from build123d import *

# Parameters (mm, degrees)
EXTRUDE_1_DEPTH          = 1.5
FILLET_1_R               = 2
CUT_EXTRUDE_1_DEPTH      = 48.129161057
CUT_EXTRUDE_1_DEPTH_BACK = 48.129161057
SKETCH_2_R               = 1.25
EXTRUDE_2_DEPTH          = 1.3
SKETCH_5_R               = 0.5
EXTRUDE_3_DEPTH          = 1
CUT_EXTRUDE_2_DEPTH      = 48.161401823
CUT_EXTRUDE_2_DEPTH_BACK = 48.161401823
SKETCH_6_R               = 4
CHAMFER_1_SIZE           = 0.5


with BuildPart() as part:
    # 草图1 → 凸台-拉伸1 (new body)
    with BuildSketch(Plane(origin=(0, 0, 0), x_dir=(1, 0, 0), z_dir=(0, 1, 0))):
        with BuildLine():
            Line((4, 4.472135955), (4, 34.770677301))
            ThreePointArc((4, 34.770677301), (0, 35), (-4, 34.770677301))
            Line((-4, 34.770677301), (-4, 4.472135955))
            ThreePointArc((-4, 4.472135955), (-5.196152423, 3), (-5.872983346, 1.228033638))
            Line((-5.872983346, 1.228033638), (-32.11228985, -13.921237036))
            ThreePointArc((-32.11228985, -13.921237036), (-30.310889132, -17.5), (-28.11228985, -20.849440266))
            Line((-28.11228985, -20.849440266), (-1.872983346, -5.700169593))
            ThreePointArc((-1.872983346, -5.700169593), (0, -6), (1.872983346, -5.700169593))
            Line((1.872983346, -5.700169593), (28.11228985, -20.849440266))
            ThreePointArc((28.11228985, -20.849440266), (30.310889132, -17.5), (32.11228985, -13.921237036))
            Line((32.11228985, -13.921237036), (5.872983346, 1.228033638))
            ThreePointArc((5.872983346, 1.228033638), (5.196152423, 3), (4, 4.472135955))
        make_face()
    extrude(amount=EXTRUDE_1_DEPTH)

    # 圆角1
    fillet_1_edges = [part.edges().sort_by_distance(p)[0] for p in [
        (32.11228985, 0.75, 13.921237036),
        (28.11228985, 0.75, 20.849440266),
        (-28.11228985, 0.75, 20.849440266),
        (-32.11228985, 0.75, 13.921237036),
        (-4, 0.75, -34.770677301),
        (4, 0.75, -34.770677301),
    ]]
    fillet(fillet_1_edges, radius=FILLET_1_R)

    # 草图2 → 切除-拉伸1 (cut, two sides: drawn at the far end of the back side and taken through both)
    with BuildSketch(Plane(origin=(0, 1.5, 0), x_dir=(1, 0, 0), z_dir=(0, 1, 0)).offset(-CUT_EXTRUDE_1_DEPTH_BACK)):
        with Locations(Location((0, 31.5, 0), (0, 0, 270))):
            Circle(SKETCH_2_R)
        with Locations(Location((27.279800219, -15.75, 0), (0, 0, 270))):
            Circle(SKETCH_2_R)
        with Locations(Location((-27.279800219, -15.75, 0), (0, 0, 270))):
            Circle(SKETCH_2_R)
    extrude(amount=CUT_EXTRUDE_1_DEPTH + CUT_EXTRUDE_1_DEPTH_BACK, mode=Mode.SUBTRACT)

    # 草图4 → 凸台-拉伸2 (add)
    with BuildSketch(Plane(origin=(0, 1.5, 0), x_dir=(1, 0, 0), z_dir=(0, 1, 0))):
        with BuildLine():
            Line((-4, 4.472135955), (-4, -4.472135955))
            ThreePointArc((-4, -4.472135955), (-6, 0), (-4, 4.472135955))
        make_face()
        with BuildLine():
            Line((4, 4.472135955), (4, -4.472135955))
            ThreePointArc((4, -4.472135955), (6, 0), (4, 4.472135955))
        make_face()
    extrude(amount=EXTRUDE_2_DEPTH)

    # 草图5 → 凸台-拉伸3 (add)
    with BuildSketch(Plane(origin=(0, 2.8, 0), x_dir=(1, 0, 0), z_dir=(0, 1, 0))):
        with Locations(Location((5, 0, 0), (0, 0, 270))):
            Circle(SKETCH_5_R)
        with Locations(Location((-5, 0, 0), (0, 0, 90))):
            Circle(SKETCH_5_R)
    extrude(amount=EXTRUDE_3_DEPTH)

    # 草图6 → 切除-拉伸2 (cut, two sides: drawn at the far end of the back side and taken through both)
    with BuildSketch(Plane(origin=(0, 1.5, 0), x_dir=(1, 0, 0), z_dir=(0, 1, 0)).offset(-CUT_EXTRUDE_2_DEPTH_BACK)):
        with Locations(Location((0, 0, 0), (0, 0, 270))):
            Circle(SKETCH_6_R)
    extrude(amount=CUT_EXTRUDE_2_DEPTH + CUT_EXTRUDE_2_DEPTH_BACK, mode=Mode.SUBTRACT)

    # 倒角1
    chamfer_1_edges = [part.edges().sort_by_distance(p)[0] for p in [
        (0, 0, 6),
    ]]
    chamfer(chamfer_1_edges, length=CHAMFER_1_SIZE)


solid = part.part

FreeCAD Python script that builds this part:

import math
import FreeCAD as App
import Part
import Sketcher
from FreeCAD import Vector
Q = App.Units.Quantity


def edges_at(feature, points):
    """Names of the edges that pass closest to the given points."""
    edges = feature.Shape.Edges
    near = lambda p: min(range(len(edges)), key=lambda i: edges[i].distToShape(Part.Vertex(*p))[0])
    return sorted({f"Edge{near(p) + 1}" for p in points})

doc = App.newDocument("Part")
body = doc.addObject("PartDesign::Body", "Body")

sketch1 = body.newObject("Sketcher::SketchObject", "Sketch")
sketch1.AttachmentSupport = (doc.getObject("XZ_Plane"), [""])
sketch1.MapMode = "FlatFace"
sketch1.addGeometry(Part.LineSegment(Vector(4, -4.5, 0), Vector(4, -34.8, 0)), False)
sketch1.addGeometry(Part.ArcOfCircle(Part.Circle(Vector(0, 0, 0), Vector(0, 0, 1), 35), math.radians(-96.56), math.radians(-83.44)), False)
sketch1.addGeometry(Part.LineSegment(Vector(-4, -34.8, 0), Vector(-4, -4.5, 0)), False)
sketch1.addGeometry(Part.ArcOfCircle(Part.Circle(Vector(0, 0, 0), Vector(0, 0, 1), 6), math.radians(-168), math.radians(-132)), False)
sketch1.addGeometry(Part.LineSegment(Vector(-5.9, -1.2, 0), Vector(-32.1, 13.9, 0)), False)
sketch1.addGeometry(Part.ArcOfCircle(Part.Circle(Vector(0, 0, 0), Vector(0, 0, 1), 35), math.radians(143.44), math.radians(156.56)), False)
sketch1.addGeometry(Part.LineSegment(Vector(-28.1, 20.8, 0), Vector(-1.9, 5.7, 0)), False)
sketch1.addGeometry(Part.ArcOfCircle(Part.Circle(Vector(0, 0, 0), Vector(0, 0, 1), 6), math.radians(72), math.radians(108)), False)
sketch1.addGeometry(Part.LineSegment(Vector(1.9, 5.7, 0), Vector(28.1, 20.8, 0)), False)
sketch1.addGeometry(Part.ArcOfCircle(Part.Circle(Vector(0, 0, 0), Vector(0, 0, 1), 35), math.radians(23.44), math.radians(36.56)), False)
sketch1.addGeometry(Part.LineSegment(Vector(32.1, 13.9, 0), Vector(5.9, -1.2, 0)), False)
sketch1.addGeometry(Part.ArcOfCircle(Part.Circle(Vector(0, 0, 0), Vector(0, 0, 1), 6), math.radians(-48), math.radians(-12)), False)
sketch1.addConstraint(Sketcher.Constraint("Coincident", 0, 2, 1, 2))
sketch1.addConstraint(Sketcher.Constraint("Coincident", 1, 1, 2, 1))
sketch1.addConstraint(Sketcher.Constraint("Coincident", 2, 2, 3, 2))
sketch1.addConstraint(Sketcher.Constraint("Coincident", 3, 1, 4, 1))
sketch1.addConstraint(Sketcher.Constraint("Coincident", 4, 2, 5, 2))
sketch1.addConstraint(Sketcher.Constraint("Coincident", 5, 1, 6, 1))
sketch1.addConstraint(Sketcher.Constraint("Coincident", 6, 2, 7, 2))
sketch1.addConstraint(Sketcher.Constraint("Coincident", 7, 1, 8, 1))
sketch1.addConstraint(Sketcher.Constraint("Coincident", 8, 2, 9, 2))
sketch1.addConstraint(Sketcher.Constraint("Coincident", 9, 1, 10, 1))
sketch1.addConstraint(Sketcher.Constraint("Coincident", 10, 2, 11, 2))
sketch1.addConstraint(Sketcher.Constraint("Coincident", 11, 1, 0, 1))
sketch1.addConstraint(Sketcher.Constraint("Vertical", 0))
sketch1.addConstraint(Sketcher.Constraint("Vertical", 2))
sketch1.addConstraint(Sketcher.Constraint("Coincident", 1, 3, -1, 1))
sketch1.addConstraint(Sketcher.Constraint("Coincident", 3, 3, -1, 1))
sketch1.addConstraint(Sketcher.Constraint("Coincident", 5, 3, -1, 1))
sketch1.addConstraint(Sketcher.Constraint("Coincident", 7, 3, -1, 1))
sketch1.addConstraint(Sketcher.Constraint("Coincident", 9, 3, -1, 1))
sketch1.addConstraint(Sketcher.Constraint("Coincident", 11, 3, -1, 1))
sketch1.addConstraint(Sketcher.Constraint("Equal", 1, 5))
sketch1.addConstraint(Sketcher.Constraint("Equal", 3, 7))
sketch1.addConstraint(Sketcher.Constraint("Equal", 5, 9))
sketch1.addConstraint(Sketcher.Constraint("Equal", 7, 11))
sketch1.addConstraint(Sketcher.Constraint("Parallel", 4, 6))
sketch1.addConstraint(Sketcher.Constraint("Parallel", 8, 10))
sketch1.addConstraint(Sketcher.Constraint("Horizontal", 0, 2, 1, 1))
sketch1.addConstraint(Sketcher.Constraint("Horizontal", 6, 2, 7, 1))
sketch1.addConstraint(Sketcher.Constraint("Horizontal", 5, 1, 8, 2))
sketch1.addConstraint(Sketcher.Constraint("Horizontal", 4, 2, 9, 1))
sketch1.addConstraint(Sketcher.Constraint("Equal", 4, 6))
sketch1.addConstraint(Sketcher.Constraint("Radius", 1, Q("35 mm")))
sketch1.addConstraint(Sketcher.Constraint("Radius", 3, Q("6 mm")))
sketch1.addConstraint(Sketcher.Constraint("Angle", 4, Q("150 deg")))
sketch1.addConstraint(Sketcher.Constraint("DistanceX", -1, 1, 0, 2, Q("4 mm")))
sketch1.addConstraint(Sketcher.Constraint("DistanceX", 4, 2, 5, 1, Q("4 mm")))
pad1 = body.newObject("PartDesign::Pad", "Pad")
pad1.Profile = sketch1
pad1.Length = 1.5
pad1.Reversed = True
doc.recompute()

fillet = body.newObject("PartDesign::Fillet", "Fillet")
fillet.Base = (pad1, edges_at(pad1, [
    (32.112, 0.75, 13.921),
    (28.112, 0.75, 20.849),
    (-28.112, 0.75, 20.849),
    (-32.112, 0.75, 13.921),
    (-4, 0.75, -34.771),
    (4, 0.75, -34.771),
]))
fillet.Radius = 2

sketch2 = body.newObject("Sketcher::SketchObject", "Sketch001")
sketch2.AttachmentSupport = (doc.getObject("XZ_Plane"), [""])
sketch2.MapMode = "FlatFace"
sketch2.AttachmentOffset = App.Placement(Vector(0, 0, -1.5), App.Rotation())
sketch2.addGeometry(Part.Circle(Vector(0, -31.5, 0), Vector(0, 0, 1), 1.2), False)
sketch2.addGeometry(Part.Circle(Vector(27.3, 15.8, 0), Vector(0, 0, 1), 1.2), False)
sketch2.addGeometry(Part.Circle(Vector(-27.3, 15.8, 0), Vector(0, 0, 1), 1.2), False)
sketch2.addConstraint(Sketcher.Constraint("Equal", 0, 1))
sketch2.addConstraint(Sketcher.Constraint("Equal", 1, 2))
sketch2.addConstraint(Sketcher.Constraint("Symmetric", 1, 3, 2, 3, -2))
sketch2.addConstraint(Sketcher.Constraint("PointOnObject", 0, 3, -2))
sketch2.addConstraint(Sketcher.Constraint("Diameter", 0, Q("2.5 mm")))
sketch2.addConstraint(Sketcher.Constraint("DistanceY", 0, 3, -1, 1, Q("31.5 mm")))
sketch2.addConstraint(Sketcher.Constraint("DistanceY", -1, 1, 1, 3, Q("15.75 mm")))
sketch2.addConstraint(Sketcher.Constraint("DistanceX", -1, 1, 1, 3, Q("27.2798 mm")))
pocket1 = body.newObject("PartDesign::Pocket", "Pocket")
pocket1.Profile = sketch2
pocket1.Type = "ThroughAll"
pocket1.Midplane = True

sketch3 = body.newObject("Sketcher::SketchObject", "Sketch002")
sketch3.AttachmentSupport = (doc.getObject("XZ_Plane"), [""])
sketch3.MapMode = "FlatFace"
sketch3.AttachmentOffset = App.Placement(Vector(0, 0, -1.5), App.Rotation())
sketch3.addGeometry(Part.LineSegment(Vector(-4, 4, 0), Vector(-4, -4, 0)), False)
sketch3.addGeometry(Part.ArcOfCircle(Part.Circle(Vector(0, 0, 0), Vector(0, 0, 1), 6), math.radians(132), math.radians(228)), False)
sketch3.addGeometry(Part.LineSegment(Vector(4, -4, 0), Vector(4, 4, 0)), False)
sketch3.addGeometry(Part.ArcOfCircle(Part.Circle(Vector(0, 0, 0), Vector(0, 0, 1), 6), math.radians(-48), math.radians(48)), False)
sketch3.addConstraint(Sketcher.Constraint("Coincident", 0, 1, 1, 1))
sketch3.addConstraint(Sketcher.Constraint("Coincident", 1, 2, 0, 2))
sketch3.addConstraint(Sketcher.Constraint("Coincident", 2, 1, 3, 1))
sketch3.addConstraint(Sketcher.Constraint("Coincident", 3, 2, 2, 2))
sketch3.addConstraint(Sketcher.Constraint("Vertical", 0))
sketch3.addConstraint(Sketcher.Constraint("Vertical", 2))
sketch3.addConstraint(Sketcher.Constraint("Coincident", 1, 3, -1, 1))
sketch3.addConstraint(Sketcher.Constraint("Coincident", 3, 3, -1, 1))
sketch3.addConstraint(Sketcher.Constraint("Equal", 1, 3))
sketch3.addConstraint(Sketcher.Constraint("Horizontal", 1, 2, 2, 1))
sketch3.addConstraint(Sketcher.Constraint("Radius", 1, Q("6 mm")))
sketch3.addConstraint(Sketcher.Constraint("DistanceX", 0, 1, -1, 1, Q("4 mm")))
pad2 = body.newObject("PartDesign::Pad", "Pad001")
pad2.Profile = sketch3
pad2.Length = 1.3
pad2.Reversed = True

sketch4 = body.newObject("Sketcher::SketchObject", "Sketch003")
sketch4.AttachmentSupport = (doc.getObject("XZ_Plane"), [""])
sketch4.MapMode = "FlatFace"
sketch4.AttachmentOffset = App.Placement(Vector(0, 0, -2.8), App.Rotation())
sketch4.addGeometry(Part.Circle(Vector(5, 0, 0), Vector(0, 0, 1), 0.5), False)
sketch4.addGeometry(Part.Circle(Vector(-5, 0, 0), Vector(0, 0, 1), 0.5), False)
sketch4.addConstraint(Sketcher.Constraint("Equal", 0, 1))
sketch4.addConstraint(Sketcher.Constraint("Symmetric", 0, 3, 1, 3, -1, 1))
sketch4.addConstraint(Sketcher.Constraint("PointOnObject", 0, 3, -1))
sketch4.addConstraint(Sketcher.Constraint("Diameter", 0, Q("1 mm")))
sketch4.addConstraint(Sketcher.Constraint("DistanceX", -1, 1, 0, 3, Q("5 mm")))
pad3 = body.newObject("PartDesign::Pad", "Pad002")
pad3.Profile = sketch4
pad3.Length = 1
pad3.Reversed = True

sketch5 = body.newObject("Sketcher::SketchObject", "Sketch004")
sketch5.AttachmentSupport = (doc.getObject("XZ_Plane"), [""])
sketch5.MapMode = "FlatFace"
sketch5.AttachmentOffset = App.Placement(Vector(0, 0, -1.5), App.Rotation())
sketch5.addGeometry(Part.Circle(Vector(0, 0, 0), Vector(0, 0, 1), 4), False)
sketch5.addConstraint(Sketcher.Constraint("Coincident", 0, 3, -1, 1))
sketch5.addConstraint(Sketcher.Constraint("Diameter", 0, Q("8 mm")))
pocket2 = body.newObject("PartDesign::Pocket", "Pocket001")
pocket2.Profile = sketch5
pocket2.Type = "ThroughAll"
pocket2.Midplane = True
doc.recompute()

chamfer = body.newObject("PartDesign::Chamfer", "Chamfer")
chamfer.Base = (pocket2, edges_at(pocket2, [(0, 0, 6)]))
chamfer.Size = 0.5

doc.recompute()
